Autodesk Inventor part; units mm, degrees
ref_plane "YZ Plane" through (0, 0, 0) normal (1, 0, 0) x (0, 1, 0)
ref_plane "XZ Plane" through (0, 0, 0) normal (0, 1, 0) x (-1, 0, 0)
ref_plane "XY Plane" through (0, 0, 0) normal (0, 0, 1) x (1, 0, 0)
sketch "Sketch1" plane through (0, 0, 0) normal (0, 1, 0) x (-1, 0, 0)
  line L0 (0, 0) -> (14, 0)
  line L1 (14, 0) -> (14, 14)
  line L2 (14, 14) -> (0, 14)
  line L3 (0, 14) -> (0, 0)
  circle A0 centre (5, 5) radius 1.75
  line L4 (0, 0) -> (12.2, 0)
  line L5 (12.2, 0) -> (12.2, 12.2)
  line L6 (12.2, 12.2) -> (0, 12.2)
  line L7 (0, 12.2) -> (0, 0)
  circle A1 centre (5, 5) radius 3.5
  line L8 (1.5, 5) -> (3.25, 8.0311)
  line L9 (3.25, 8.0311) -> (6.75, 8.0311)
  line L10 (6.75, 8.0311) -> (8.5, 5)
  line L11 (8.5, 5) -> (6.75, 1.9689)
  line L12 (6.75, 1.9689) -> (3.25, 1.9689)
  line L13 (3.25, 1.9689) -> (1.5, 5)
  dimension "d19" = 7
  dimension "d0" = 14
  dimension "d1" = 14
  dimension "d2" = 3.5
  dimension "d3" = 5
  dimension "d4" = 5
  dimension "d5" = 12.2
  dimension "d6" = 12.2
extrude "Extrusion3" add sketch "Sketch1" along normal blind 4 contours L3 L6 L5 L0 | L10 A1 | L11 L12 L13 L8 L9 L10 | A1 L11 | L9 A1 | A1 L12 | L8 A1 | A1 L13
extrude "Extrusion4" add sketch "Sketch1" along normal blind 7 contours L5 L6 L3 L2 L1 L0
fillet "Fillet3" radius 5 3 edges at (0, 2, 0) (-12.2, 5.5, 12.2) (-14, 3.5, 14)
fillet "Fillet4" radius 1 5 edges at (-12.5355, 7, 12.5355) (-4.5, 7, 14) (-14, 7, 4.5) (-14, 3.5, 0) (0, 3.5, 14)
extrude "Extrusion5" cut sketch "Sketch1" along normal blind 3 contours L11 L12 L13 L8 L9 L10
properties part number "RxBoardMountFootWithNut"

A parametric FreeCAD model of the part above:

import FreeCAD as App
import Part
import Sketcher

V = App.Vector
Q = App.Units.Quantity


def edges_at(feature, points):
    """Names of the edges that pass closest to the given points."""
    edges = feature.Shape.Edges
    near = lambda p: min(range(len(edges)), key=lambda i: edges[i].distToShape(Part.Vertex(*p))[0])
    return sorted({f"Edge{near(p) + 1}" for p in points})


def add_polygon(sketch, points):
    """Adds a closed chain of lines whose ends are joined by coincident constraints."""
    first, n = sketch.GeometryCount, len(points)
    for a, b in zip(points, points[1:] + points[:1]):
        sketch.addGeometry(Part.LineSegment(App.Vector(*a, 0), App.Vector(*b, 0)), False)
    for i in range(n):
        sketch.addConstraint(Sketcher.Constraint("Coincident", first + i, 2, first + (i + 1) % n, 1))

doc = App.newDocument("Part")
body = doc.addObject("PartDesign::Body", "Body")

# Sketch on XZ plane
sketch1 = body.newObject("Sketcher::SketchObject", "Sketch")
sketch1.AttachmentSupport = (doc.getObject("XZ_Plane"), [""])
sketch1.MapMode = "FlatFace"
add_polygon(sketch1, [(0, 12.2), (0, 0), (-12.2, 0), (-12.2, 12.2)])  # lines 0-3
sketch1.addGeometry(Part.Circle(V(-5, 5, 0), V(0, 0, 1), 1.8), False)  # 4
sketch1.addConstraint(Sketcher.Constraint("Vertical", 0))
sketch1.addConstraint(Sketcher.Constraint("Horizontal", 1))
sketch1.addConstraint(Sketcher.Constraint("Vertical", 2))
sketch1.addConstraint(Sketcher.Constraint("Horizontal", 3))
sketch1.addConstraint(Sketcher.Constraint("Coincident", 0, 2, -1, 1))
sketch1.addConstraint(Sketcher.Constraint("Equal", 3, 0))
sketch1.addConstraint(Sketcher.Constraint("Diameter", 4, Q("3.5 mm")))
sketch1.addConstraint(Sketcher.Constraint("DistanceX", 1, 2, 1, 1, Q("12.2 mm")))
sketch1.addConstraint(Sketcher.Constraint("DistanceX", 4, 3, -1, 1, Q("5 mm")))
sketch1.addConstraint(Sketcher.Constraint("DistanceY", -1, 1, 4, 3, Q("5 mm")))
pad1 = body.newObject("PartDesign::Pad", "Pad")
pad1.Profile = sketch1
pad1.Length = 4
pad1.Reversed = True

# Sketch on XZ plane
sketch2 = body.newObject("Sketcher::SketchObject", "Sketch001")
sketch2.AttachmentSupport = (doc.getObject("XZ_Plane"), [""])
sketch2.MapMode = "FlatFace"
add_polygon(sketch2, [(-12.2, 12.2), (-12.2, 0), (-14, 0), (-14, 14), (0, 14), (0, 12.2)])  # lines 0-5
sketch2.addConstraint(Sketcher.Constraint("Vertical", 0))
sketch2.addConstraint(Sketcher.Constraint("Horizontal", 1))
sketch2.addConstraint(Sketcher.Constraint("Vertical", 2))
sketch2.addConstraint(Sketcher.Constraint("Horizontal", 3))
sketch2.addConstraint(Sketcher.Constraint("Vertical", 4))
sketch2.addConstraint(Sketcher.Constraint("Horizontal", 5))
sketch2.addConstraint(Sketcher.Constraint("PointOnObject", 0, 2, -1))
sketch2.addConstraint(Sketcher.Constraint("PointOnObject", 3, 2, -2))
sketch2.addConstraint(Sketcher.Constraint("Equal", 5, 0))
sketch2.addConstraint(Sketcher.Constraint("Equal", 3, 2))
sketch2.addConstraint(Sketcher.Constraint("DistanceX", 3, 1, 3, 2, Q("14 mm")))
sketch2.addConstraint(Sketcher.Constraint("DistanceX", 5, 2, 5, 1, Q("12.2 mm")))
pad2 = body.newObject("PartDesign::Pad", "Pad001")
pad2.Profile = sketch2
pad2.Length = 7
pad2.Reversed = True
doc.recompute()

fillet = body.newObject("PartDesign::Fillet", "Fillet")
fillet.Base = (pad2, edges_at(pad2, [(0, 2, 0), (-12.2, 5.5, 12.2), (-14, 3.5, 14)]))
fillet.Radius = 5
doc.recompute()

fillet2 = body.newObject("PartDesign::Fillet", "Fillet001")
fillet2.Base = (fillet, edges_at(fillet, [
    (-12.536, 7, 12.536),
    (-4.5, 7, 14),
    (-14, 7, 4.5),
    (-14, 3.5, 0),
    (0, 3.5, 14),
]))
fillet2.Radius = 1

# Sketch on XZ plane
sketch3 = body.newObject("Sketcher::SketchObject", "Sketch002")
sketch3.AttachmentSupport = (doc.getObject("XZ_Plane"), [""])
sketch3.MapMode = "FlatFace"
add_polygon(sketch3, [(-6.8, 2), (-8.5, 5), (-6.8, 8), (-3.2, 8), (-1.5, 5), (-3.2, 2)])  # lines 0-5
sketch3.addGeometry(Part.Circle(V(-5, 5, 0), V(0, 0, 1), 1.8), False)  # 6
sketch3.addConstraint(Sketcher.Constraint("Horizontal", 2))
sketch3.addConstraint(Sketcher.Constraint("Horizontal", 5))
sketch3.addConstraint(Sketcher.Constraint("Parallel", 0, 3))
sketch3.addConstraint(Sketcher.Constraint("Parallel", 1, 4))
sketch3.addConstraint(Sketcher.Constraint("Horizontal", 6, 3, 0, 2))
sketch3.addConstraint(Sketcher.Constraint("Horizontal", 0, 2, 3, 2))
sketch3.addConstraint(Sketcher.Constraint("Vertical", 2, 2, 4, 2))
sketch3.addConstraint(Sketcher.Constraint("Vertical", 1, 2, 5, 2))
sketch3.addConstraint(Sketcher.Constraint("Diameter", 6, Q("3.5 mm")))
sketch3.addConstraint(Sketcher.Constraint("DistanceX", 2, 1, 2, 2, Q("3.5 mm")))
sketch3.addConstraint(Sketcher.Constraint("DistanceX", 6, 3, -1, 1, Q("5 mm")))
sketch3.addConstraint(Sketcher.Constraint("DistanceY", -1, 1, 6, 3, Q("5 mm")))
sketch3.addConstraint(Sketcher.Constraint("DistanceX", 0, 2, 3, 2, Q("7 mm")))
sketch3.addConstraint(Sketcher.Constraint("Distance", 0, Q("3.5 mm")))
sketch3.addConstraint(Sketcher.Constraint("DistanceX", 0, 2, 6, 3, Q("3.5 mm")))
pocket1 = body.newObject("PartDesign::Pocket", "Pocket")
pocket1.Profile = sketch3
pocket1.Length = 3

doc.recompute()
